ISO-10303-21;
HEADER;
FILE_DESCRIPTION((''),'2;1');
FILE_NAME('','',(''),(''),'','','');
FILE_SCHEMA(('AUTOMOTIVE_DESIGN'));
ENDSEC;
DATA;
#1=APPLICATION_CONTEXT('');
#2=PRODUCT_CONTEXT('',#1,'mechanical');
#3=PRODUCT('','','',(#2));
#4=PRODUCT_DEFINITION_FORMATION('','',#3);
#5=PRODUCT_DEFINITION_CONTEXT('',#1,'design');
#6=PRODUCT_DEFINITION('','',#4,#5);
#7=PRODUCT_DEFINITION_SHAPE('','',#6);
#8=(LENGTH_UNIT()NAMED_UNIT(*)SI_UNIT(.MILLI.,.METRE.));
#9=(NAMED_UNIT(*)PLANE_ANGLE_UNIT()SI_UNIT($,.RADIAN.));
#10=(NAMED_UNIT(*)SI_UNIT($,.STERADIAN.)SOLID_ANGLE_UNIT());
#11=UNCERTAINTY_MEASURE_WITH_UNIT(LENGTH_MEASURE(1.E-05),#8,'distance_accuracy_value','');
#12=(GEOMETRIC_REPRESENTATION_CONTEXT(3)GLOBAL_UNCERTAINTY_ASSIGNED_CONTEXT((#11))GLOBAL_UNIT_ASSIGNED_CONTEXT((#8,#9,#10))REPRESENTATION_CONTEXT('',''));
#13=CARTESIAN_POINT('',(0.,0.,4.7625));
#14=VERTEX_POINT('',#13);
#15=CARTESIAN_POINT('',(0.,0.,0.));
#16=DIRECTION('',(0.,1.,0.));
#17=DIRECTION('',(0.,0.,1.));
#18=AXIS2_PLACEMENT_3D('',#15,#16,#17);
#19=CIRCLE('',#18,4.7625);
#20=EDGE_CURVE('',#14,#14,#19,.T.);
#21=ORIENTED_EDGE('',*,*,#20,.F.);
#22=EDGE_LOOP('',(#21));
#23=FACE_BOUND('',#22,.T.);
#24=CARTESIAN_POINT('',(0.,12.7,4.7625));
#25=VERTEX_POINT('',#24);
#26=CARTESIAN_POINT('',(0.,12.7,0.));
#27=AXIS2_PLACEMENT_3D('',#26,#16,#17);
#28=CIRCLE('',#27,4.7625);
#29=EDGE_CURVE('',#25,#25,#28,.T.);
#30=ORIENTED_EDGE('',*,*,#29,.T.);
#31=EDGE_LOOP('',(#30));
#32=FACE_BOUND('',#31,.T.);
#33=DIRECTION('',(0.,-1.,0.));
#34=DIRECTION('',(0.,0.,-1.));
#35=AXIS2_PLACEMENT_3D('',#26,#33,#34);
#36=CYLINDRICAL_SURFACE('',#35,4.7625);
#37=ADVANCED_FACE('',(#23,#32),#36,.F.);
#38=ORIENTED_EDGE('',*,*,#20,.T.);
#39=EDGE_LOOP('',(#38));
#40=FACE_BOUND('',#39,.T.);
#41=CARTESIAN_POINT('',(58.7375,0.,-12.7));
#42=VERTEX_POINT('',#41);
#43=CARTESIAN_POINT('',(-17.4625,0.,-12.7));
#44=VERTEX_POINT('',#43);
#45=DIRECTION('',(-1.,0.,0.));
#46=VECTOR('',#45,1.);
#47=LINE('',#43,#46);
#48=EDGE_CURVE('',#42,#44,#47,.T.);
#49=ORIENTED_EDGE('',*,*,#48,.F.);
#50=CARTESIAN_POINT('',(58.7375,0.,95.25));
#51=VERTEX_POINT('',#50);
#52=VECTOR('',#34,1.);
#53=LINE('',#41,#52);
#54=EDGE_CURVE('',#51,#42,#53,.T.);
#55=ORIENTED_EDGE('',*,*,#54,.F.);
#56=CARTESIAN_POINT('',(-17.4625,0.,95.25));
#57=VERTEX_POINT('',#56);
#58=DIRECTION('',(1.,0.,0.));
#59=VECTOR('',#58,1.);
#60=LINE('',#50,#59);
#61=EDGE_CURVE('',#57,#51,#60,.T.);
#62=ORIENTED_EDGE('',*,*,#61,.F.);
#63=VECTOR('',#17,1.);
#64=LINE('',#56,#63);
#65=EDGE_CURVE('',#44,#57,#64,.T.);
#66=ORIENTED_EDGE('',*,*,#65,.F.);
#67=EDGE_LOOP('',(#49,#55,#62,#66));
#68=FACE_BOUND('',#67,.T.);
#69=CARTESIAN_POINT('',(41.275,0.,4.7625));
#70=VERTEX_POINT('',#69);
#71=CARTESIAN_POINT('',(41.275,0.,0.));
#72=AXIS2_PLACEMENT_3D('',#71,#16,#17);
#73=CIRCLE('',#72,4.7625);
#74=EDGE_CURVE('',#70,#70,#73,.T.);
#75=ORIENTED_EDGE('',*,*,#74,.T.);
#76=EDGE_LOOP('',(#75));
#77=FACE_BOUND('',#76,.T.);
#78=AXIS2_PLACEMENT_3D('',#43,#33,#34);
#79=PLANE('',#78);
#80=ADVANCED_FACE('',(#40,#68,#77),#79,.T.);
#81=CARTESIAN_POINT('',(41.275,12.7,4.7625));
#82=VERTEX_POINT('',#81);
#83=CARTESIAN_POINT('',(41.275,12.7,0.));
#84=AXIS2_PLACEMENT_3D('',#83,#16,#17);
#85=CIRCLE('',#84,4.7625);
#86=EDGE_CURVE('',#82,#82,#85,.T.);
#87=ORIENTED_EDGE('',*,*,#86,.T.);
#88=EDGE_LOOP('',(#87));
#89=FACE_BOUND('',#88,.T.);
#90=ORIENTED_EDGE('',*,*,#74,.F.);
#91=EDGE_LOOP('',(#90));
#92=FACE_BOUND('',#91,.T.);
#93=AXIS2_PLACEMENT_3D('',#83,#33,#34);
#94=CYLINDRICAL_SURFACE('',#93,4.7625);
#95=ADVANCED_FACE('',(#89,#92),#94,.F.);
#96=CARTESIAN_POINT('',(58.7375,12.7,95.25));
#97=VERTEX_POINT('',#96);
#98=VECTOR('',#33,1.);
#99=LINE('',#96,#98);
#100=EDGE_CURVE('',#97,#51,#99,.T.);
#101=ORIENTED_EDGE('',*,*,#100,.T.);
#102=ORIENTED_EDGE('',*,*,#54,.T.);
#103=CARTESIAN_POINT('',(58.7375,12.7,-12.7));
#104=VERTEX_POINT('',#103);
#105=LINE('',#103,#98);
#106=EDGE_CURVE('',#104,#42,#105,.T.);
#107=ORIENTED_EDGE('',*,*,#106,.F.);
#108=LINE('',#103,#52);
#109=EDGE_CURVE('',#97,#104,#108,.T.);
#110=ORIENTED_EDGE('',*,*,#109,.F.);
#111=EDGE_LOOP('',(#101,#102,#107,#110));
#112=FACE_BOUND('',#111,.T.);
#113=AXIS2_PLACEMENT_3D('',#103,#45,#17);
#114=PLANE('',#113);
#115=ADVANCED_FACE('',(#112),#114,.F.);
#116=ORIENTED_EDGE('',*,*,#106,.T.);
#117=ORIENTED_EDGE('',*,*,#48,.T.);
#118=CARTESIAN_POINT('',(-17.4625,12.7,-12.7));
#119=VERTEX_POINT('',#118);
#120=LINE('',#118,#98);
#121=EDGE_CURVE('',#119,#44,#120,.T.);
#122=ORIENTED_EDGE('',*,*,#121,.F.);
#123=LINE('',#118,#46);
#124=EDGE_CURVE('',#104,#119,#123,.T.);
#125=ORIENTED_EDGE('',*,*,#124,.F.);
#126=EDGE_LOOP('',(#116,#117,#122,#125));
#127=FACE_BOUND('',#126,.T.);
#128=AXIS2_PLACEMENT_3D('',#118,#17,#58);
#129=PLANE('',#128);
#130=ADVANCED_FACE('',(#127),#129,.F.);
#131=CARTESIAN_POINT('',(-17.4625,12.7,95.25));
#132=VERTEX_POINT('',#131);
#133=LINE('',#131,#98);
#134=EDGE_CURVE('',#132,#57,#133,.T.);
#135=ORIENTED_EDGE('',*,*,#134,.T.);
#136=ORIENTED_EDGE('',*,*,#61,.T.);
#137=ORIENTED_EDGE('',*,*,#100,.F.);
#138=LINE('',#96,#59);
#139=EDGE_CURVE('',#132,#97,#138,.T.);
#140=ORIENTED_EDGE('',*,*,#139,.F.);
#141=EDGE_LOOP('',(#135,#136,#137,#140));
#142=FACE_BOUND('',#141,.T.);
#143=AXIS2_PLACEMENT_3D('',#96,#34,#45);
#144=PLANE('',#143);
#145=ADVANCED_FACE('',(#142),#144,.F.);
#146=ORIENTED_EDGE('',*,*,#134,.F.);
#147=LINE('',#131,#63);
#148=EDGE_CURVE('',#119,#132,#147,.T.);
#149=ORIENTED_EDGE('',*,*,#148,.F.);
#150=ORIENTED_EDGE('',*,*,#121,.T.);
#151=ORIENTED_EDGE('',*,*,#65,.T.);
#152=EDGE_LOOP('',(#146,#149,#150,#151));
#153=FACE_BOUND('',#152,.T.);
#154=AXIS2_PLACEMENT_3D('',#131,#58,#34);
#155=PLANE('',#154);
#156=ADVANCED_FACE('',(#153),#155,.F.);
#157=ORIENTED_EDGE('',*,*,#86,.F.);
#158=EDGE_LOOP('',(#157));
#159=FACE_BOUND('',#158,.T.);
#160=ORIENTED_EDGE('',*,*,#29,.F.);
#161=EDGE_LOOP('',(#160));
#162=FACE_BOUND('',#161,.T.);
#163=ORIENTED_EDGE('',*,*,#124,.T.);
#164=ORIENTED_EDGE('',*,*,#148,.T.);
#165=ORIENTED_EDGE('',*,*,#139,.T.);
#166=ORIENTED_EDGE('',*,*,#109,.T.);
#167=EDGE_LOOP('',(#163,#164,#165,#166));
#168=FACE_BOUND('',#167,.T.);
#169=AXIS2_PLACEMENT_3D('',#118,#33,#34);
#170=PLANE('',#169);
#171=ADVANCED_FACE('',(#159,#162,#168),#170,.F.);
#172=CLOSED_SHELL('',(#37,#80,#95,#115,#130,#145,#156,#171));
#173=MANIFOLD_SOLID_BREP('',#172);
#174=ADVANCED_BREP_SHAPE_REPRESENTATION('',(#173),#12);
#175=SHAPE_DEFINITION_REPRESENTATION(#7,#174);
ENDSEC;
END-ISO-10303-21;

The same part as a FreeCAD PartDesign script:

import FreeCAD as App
import Part
import Sketcher
Q = App.Units.Quantity

doc = App.newDocument("Part")
body = doc.addObject("PartDesign::Body", "Body")

sketch1 = doc.addObject("Sketcher::SketchObject", "Sketch")
body.addObject(sketch1)
sketch1.AttachmentSupport = (doc.XZ_Plane, [""])
sketch1.MapMode = "FlatFace"
sketch1.addGeometry([
    Part.LineSegment(App.Vector(-17.5, -12.7, 0), App.Vector(-17.5, 95.2, 0)),
    Part.LineSegment(App.Vector(-17.5, 95.2, 0), App.Vector(58.7, 95.2, 0)),
    Part.LineSegment(App.Vector(58.7, 95.2, 0), App.Vector(58.7, -12.7, 0)),
    Part.LineSegment(App.Vector(58.7, -12.7, 0), App.Vector(-17.5, -12.7, 0)),
    Part.Circle(App.Vector(0, 0, 0), App.Vector(0, 0, 1), 4.8),
    Part.Circle(App.Vector(41.3, 0, 0), App.Vector(0, 0, 1), 4.8),
], False)
sketch1.addConstraint([
    Sketcher.Constraint("Coincident", 0, 2, 1, 1),
    Sketcher.Constraint("Coincident", 1, 2, 2, 1),
    Sketcher.Constraint("Coincident", 2, 2, 3, 1),
    Sketcher.Constraint("Coincident", 3, 2, 0, 1),
    Sketcher.Constraint("Vertical", 0),
    Sketcher.Constraint("Horizontal", 1),
    Sketcher.Constraint("Vertical", 2),
    Sketcher.Constraint("Horizontal", 3),
    Sketcher.Constraint("Coincident", 4, 3, -1, 1),
    Sketcher.Constraint("Equal", 4, 5),
    Sketcher.Constraint("PointOnObject", 5, 3, -1),
    Sketcher.Constraint("DistanceX", 1, 1, 1, 2, Q("3 in")),
    Sketcher.Constraint("Diameter", 4, Q("0.375 in")),
    Sketcher.Constraint("DistanceY", 0, 1, 0, 2, Q("4.25 in")),
    Sketcher.Constraint("DistanceY", 2, 2, -1, 1, Q("0.5 in")),
    Sketcher.Constraint("DistanceX", -1, 1, 5, 3, Q("1.625 in")),
    Sketcher.Constraint("DistanceX", 0, 2, -1, 1, Q("0.6875 in")),
])
pad1 = doc.addObject("PartDesign::Pad", "Pad")
body.addObject(pad1)
pad1.Profile = sketch1
pad1.Length = Q("0.5 in")
pad1.Reversed = True

doc.recompute()
